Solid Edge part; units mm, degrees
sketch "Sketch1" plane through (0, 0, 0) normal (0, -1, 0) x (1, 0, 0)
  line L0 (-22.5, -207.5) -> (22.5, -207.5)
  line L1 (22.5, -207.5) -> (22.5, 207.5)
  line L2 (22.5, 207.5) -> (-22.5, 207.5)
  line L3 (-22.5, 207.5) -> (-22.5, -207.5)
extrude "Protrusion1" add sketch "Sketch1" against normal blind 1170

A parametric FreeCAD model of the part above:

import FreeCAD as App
import Part
import Sketcher
Q = App.Units.Quantity

doc = App.newDocument("Part")
params = doc.addObject("Spreadsheet::Sheet", "Params")
for row, (alias, value) in enumerate([
    ("sketch1_width", "45 mm"),
    ("sketch1_height", "415 mm"),
    ("pad1_length", "1170 mm"),
], start=1):
    params.set(f"A{row}", alias)
    params.set(f"B{row}", "=" + value)
    params.setAlias(f"B{row}", alias)

body = doc.addObject("PartDesign::Body", "Body")

# Sketch on XZ plane
sketch1 = doc.addObject("Sketcher::SketchObject", "Sketch")
body.addObject(sketch1)
sketch1.AttachmentSupport = (doc.XZ_Plane, [""])
sketch1.MapMode = "FlatFace"
sketch1.addGeometry([
    Part.LineSegment(App.Vector(-22, 208, 0), App.Vector(-22, -208, 0)),
    Part.LineSegment(App.Vector(-22, -208, 0), App.Vector(22, -208, 0)),
    Part.LineSegment(App.Vector(22, -208, 0), App.Vector(22, 208, 0)),
    Part.LineSegment(App.Vector(22, 208, 0), App.Vector(-22, 208, 0)),
], False)
sketch1.addConstraint([
    Sketcher.Constraint("Coincident", 0, 2, 1, 1),
    Sketcher.Constraint("Coincident", 1, 2, 2, 1),
    Sketcher.Constraint("Coincident", 2, 2, 3, 1),
    Sketcher.Constraint("Coincident", 3, 2, 0, 1),
    Sketcher.Constraint("Vertical", 0),
    Sketcher.Constraint("Horizontal", 1),
    Sketcher.Constraint("Vertical", 2),
    Sketcher.Constraint("Horizontal", 3),
    Sketcher.Constraint("Symmetric", 0, 2, 2, 2, -1, 1),
    Sketcher.Constraint("DistanceX", 1, 1, 1, 2, Q("45 mm")),
    Sketcher.Constraint("DistanceY", 0, 2, 0, 1, Q("415 mm")),
])
sketch1.setExpression("Constraints[9]", "Params.sketch1_width")
sketch1.setExpression("Constraints[10]", "Params.sketch1_height")
pad1 = doc.addObject("PartDesign::Pad", "Pad")
body.addObject(pad1)
pad1.Profile = sketch1
pad1.setExpression("Length", "Params.pad1_length")
pad1.Reversed = True

doc.recompute()
